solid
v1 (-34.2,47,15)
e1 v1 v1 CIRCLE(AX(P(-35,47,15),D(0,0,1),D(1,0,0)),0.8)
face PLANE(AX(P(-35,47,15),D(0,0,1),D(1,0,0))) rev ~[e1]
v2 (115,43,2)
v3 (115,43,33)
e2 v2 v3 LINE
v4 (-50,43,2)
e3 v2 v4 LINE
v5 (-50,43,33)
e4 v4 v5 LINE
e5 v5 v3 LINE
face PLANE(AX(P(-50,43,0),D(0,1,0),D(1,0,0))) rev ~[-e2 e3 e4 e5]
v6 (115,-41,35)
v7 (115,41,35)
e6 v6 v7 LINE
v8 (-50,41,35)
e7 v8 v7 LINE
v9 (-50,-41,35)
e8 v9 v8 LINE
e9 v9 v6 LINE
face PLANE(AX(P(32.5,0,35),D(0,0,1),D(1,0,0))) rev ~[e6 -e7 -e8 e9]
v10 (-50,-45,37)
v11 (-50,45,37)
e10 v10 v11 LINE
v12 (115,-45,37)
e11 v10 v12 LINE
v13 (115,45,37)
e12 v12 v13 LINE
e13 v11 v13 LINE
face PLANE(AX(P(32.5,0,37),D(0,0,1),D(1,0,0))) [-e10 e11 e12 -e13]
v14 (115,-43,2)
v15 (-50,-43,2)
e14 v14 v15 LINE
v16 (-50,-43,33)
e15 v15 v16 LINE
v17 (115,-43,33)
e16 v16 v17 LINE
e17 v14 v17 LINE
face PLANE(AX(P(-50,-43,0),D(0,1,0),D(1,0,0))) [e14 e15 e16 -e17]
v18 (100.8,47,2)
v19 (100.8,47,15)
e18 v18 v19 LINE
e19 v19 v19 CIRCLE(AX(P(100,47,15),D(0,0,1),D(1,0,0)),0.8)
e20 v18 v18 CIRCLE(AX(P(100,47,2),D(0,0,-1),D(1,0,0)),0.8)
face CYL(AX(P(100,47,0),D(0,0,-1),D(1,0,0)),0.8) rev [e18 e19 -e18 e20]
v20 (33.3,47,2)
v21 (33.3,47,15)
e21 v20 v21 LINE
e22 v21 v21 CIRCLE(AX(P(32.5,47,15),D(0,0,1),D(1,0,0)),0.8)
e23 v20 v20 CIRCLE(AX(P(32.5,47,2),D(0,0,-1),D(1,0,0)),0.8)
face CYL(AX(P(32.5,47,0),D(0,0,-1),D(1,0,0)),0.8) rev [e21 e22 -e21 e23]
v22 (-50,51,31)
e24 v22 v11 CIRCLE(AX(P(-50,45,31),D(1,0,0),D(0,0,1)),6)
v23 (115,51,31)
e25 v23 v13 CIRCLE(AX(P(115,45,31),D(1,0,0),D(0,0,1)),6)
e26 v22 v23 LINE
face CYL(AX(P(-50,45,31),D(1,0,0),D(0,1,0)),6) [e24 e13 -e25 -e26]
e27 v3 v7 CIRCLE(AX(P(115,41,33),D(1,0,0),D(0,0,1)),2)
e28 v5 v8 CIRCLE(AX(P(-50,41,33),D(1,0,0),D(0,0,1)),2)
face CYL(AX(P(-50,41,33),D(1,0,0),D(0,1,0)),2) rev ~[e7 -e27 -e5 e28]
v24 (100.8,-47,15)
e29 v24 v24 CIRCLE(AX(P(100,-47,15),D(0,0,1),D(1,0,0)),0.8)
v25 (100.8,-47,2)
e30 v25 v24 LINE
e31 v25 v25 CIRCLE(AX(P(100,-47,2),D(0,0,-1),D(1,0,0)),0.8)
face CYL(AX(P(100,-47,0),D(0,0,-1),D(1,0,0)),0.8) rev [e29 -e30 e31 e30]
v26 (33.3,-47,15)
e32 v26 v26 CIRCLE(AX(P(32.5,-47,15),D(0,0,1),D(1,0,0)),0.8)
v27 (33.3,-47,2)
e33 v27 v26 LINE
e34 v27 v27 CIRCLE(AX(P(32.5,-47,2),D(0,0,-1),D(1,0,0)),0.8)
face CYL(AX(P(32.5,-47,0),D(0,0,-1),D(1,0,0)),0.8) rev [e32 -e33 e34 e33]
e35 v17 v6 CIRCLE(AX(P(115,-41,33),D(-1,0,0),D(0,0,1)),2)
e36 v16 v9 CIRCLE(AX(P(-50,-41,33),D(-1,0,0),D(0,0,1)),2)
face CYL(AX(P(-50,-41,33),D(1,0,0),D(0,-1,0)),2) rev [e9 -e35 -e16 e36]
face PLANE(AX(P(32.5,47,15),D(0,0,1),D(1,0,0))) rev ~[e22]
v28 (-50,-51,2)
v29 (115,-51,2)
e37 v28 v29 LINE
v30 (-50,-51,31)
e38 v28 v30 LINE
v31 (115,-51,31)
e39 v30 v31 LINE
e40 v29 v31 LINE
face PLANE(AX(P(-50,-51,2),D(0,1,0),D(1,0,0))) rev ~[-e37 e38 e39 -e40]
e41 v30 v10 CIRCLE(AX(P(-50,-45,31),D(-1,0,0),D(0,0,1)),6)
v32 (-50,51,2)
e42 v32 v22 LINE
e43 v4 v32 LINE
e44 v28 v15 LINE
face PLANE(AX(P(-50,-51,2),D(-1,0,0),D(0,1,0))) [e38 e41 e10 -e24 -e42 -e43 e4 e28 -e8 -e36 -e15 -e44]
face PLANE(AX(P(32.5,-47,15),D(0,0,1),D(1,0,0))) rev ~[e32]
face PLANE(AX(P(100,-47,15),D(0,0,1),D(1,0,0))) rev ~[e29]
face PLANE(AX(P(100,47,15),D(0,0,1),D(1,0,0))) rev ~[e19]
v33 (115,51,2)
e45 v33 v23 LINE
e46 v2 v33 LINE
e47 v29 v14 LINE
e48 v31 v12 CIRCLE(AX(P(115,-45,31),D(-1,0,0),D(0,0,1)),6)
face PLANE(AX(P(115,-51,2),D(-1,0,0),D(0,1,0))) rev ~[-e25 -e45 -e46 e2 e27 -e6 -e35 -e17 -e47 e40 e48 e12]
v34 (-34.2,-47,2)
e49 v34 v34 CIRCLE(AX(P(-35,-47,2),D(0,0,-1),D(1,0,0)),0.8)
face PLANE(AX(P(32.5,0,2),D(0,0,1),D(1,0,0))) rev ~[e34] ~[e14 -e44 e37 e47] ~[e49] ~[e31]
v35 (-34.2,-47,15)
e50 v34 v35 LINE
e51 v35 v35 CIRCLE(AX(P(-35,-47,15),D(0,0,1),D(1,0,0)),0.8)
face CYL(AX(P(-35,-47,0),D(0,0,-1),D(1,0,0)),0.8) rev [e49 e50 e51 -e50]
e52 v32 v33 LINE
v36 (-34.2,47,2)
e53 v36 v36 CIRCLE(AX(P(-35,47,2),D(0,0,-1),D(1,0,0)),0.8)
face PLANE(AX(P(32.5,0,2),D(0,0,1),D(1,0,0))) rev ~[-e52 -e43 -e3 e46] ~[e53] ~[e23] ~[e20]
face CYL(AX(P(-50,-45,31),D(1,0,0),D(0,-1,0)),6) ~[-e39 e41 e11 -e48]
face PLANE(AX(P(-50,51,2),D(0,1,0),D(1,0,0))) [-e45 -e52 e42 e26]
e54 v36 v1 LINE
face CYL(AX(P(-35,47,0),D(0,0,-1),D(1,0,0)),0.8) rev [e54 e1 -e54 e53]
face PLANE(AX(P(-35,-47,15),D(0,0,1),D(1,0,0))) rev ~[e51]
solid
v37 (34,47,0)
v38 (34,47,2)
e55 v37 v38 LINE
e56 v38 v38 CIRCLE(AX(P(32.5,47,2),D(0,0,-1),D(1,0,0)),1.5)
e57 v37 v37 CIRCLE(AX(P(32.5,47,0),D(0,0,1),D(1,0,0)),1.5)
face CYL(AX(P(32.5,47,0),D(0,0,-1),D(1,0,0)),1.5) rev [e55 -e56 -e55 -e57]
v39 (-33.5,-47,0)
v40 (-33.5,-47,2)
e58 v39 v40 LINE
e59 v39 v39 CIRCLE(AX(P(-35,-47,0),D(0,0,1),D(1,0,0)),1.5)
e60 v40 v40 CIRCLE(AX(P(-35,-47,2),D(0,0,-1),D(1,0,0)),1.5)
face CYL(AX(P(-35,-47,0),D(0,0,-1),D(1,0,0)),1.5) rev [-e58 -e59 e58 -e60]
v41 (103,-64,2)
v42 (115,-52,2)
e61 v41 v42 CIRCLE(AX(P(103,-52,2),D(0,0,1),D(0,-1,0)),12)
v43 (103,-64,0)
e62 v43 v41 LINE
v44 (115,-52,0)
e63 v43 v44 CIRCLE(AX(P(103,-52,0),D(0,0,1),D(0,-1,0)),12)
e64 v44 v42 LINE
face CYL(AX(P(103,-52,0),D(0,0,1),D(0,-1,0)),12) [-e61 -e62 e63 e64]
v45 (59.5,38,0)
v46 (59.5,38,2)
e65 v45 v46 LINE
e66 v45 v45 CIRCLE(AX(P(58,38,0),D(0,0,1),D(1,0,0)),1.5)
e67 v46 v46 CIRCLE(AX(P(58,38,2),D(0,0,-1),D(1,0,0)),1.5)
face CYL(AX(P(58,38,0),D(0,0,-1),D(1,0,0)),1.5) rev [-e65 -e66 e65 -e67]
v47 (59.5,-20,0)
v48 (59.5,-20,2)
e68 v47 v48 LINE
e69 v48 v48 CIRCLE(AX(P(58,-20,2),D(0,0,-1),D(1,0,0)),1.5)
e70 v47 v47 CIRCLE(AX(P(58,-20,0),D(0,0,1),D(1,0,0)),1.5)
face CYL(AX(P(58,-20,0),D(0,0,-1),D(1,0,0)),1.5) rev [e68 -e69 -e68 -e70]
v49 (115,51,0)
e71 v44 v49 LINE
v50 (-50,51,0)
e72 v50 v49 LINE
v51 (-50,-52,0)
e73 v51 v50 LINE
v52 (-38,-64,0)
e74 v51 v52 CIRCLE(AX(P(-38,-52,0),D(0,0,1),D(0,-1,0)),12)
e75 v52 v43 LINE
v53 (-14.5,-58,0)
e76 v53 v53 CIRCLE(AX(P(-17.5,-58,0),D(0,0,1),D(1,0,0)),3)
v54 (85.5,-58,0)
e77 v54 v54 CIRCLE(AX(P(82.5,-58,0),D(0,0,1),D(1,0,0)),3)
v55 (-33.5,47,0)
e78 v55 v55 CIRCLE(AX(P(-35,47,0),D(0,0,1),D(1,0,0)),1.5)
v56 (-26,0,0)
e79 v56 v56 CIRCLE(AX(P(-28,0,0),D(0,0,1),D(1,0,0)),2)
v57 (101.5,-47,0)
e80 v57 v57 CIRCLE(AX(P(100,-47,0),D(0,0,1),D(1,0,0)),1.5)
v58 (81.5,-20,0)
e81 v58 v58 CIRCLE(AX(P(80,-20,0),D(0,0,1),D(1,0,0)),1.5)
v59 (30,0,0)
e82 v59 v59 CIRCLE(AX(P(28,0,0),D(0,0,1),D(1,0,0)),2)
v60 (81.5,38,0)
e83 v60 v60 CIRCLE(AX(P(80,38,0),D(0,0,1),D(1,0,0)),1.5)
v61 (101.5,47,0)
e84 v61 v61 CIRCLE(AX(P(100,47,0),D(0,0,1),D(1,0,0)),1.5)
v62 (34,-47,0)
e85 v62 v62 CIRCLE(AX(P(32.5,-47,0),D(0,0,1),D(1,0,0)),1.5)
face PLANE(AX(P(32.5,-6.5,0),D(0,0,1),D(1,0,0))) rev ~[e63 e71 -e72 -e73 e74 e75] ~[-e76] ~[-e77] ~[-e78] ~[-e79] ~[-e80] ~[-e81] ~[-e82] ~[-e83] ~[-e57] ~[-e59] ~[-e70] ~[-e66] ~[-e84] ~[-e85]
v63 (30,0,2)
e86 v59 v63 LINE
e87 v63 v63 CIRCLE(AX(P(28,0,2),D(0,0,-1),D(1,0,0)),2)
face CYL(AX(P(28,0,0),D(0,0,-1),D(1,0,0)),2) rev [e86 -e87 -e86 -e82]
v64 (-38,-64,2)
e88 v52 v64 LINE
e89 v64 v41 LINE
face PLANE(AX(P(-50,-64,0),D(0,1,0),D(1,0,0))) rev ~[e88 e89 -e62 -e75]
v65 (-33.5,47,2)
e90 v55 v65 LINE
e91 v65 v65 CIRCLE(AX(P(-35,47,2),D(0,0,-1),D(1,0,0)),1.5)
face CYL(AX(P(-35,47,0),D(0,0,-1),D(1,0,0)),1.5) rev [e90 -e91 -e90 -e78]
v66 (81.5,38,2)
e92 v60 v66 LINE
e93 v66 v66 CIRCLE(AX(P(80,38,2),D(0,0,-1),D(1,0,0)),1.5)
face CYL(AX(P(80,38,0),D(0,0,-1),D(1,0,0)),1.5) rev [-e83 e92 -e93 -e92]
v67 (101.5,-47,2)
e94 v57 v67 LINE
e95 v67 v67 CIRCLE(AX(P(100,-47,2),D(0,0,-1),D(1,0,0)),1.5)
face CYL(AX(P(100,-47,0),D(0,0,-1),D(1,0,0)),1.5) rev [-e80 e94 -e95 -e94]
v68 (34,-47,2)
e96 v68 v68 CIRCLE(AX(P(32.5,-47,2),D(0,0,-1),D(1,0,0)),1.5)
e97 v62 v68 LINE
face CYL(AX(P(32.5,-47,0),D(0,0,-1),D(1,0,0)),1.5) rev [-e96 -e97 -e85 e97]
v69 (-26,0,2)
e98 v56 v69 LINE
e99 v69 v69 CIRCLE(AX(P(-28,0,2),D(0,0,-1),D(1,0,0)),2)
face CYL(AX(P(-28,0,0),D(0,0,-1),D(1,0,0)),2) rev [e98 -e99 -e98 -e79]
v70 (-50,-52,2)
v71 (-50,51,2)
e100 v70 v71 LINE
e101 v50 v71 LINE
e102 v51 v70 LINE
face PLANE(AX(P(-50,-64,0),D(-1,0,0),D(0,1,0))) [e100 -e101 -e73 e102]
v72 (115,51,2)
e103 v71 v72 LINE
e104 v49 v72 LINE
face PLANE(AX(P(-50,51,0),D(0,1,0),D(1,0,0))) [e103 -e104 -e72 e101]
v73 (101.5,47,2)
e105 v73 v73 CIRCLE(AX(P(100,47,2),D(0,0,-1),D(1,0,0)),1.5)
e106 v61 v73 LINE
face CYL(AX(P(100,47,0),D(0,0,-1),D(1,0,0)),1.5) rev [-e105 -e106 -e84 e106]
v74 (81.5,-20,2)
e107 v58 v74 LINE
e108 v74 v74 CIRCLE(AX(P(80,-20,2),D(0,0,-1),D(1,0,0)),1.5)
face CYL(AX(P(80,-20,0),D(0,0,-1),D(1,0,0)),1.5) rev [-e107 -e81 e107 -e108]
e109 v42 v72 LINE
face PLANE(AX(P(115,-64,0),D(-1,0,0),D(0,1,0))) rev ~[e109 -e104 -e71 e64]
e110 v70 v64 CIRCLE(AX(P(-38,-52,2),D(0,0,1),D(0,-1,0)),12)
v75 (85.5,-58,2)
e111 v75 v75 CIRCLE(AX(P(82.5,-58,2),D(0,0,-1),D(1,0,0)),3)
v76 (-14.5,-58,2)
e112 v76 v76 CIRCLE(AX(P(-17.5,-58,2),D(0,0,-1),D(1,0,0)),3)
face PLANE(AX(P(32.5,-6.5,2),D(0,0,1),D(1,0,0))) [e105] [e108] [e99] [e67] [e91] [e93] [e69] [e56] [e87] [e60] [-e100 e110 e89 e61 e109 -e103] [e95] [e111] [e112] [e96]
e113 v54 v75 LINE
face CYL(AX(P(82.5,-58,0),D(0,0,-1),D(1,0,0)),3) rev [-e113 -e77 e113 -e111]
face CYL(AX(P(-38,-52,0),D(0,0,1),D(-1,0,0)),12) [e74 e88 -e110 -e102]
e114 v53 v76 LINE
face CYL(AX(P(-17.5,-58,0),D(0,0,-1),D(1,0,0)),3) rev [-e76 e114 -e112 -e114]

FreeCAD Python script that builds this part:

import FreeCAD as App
import Part
import Sketcher

V = App.Vector
Q = App.Units.Quantity


def edges_at(feature, points):
    """Names of the edges that pass closest to the given points."""
    edges = feature.Shape.Edges
    near = lambda p: min(range(len(edges)), key=lambda i: edges[i].distToShape(Part.Vertex(*p))[0])
    return sorted({f"Edge{near(p) + 1}" for p in points})


def add_polygon(sketch, points):
    """Adds a closed chain of lines whose ends are joined by coincident constraints."""
    first, n = sketch.GeometryCount, len(points)
    for a, b in zip(points, points[1:] + points[:1]):
        sketch.addGeometry(Part.LineSegment(App.Vector(*a, 0), App.Vector(*b, 0)), False)
    for i in range(n):
        sketch.addConstraint(Sketcher.Constraint("Coincident", first + i, 2, first + (i + 1) % n, 1))

doc = App.newDocument("Part")
body = doc.addObject("PartDesign::Body", "Body")

# Sketch on XY plane
sketch1 = body.newObject("Sketcher::SketchObject", "Sketch")
sketch1.AttachmentSupport = (doc.getObject("XY_Plane"), [""])
sketch1.MapMode = "FlatFace"
sketch1.addGeometry(Part.Circle(V(100, 47, 0), V(0, 0, 1), 0.8), False)
sketch1.addConstraint([
    Sketcher.Constraint("Diameter", 0, Q("1.6 mm")),
    Sketcher.Constraint("DistanceX", -1, 1, 0, 3, Q("100 mm")),
    Sketcher.Constraint("DistanceY", -1, 1, 0, 3, Q("47 mm")),
])
pad1 = body.newObject("PartDesign::Pad", "Pad")
pad1.Profile = sketch1
pad1.Length = 15
body2 = doc.addObject("PartDesign::Body", "Body001")

# Sketch on XY plane
sketch2 = body2.newObject("Sketcher::SketchObject", "Sketch001")
sketch2.AttachmentSupport = (doc.getObject("XY_Plane001"), [""])
sketch2.MapMode = "FlatFace"
sketch2.addGeometry(Part.Circle(V(-35, 47, 0), V(0, 0, 1), 0.8), False)
sketch2.addConstraint([
    Sketcher.Constraint("Diameter", 0, Q("1.6 mm")),
    Sketcher.Constraint("DistanceX", 0, 3, -1, 1, Q("35 mm")),
    Sketcher.Constraint("DistanceY", -1, 1, 0, 3, Q("47 mm")),
])
pad2 = body2.newObject("PartDesign::Pad", "Pad001")
pad2.Profile = sketch2
pad2.Length = 15
body3 = doc.addObject("PartDesign::Body", "Body002")

# Sketch on XY plane
sketch3 = body3.newObject("Sketcher::SketchObject", "Sketch002")
sketch3.AttachmentSupport = (doc.getObject("XY_Plane002"), [""])
sketch3.MapMode = "FlatFace"
sketch3.addGeometry(Part.Circle(V(32.5, 47, 0), V(0, 0, 1), 0.8), False)
sketch3.addConstraint([
    Sketcher.Constraint("Diameter", 0, Q("1.6 mm")),
    Sketcher.Constraint("DistanceY", -1, 1, 0, 3, Q("47 mm")),
    Sketcher.Constraint("DistanceX", -1, 1, 0, 3, Q("32.5 mm")),
])
pad3 = body3.newObject("PartDesign::Pad", "Pad002")
pad3.Profile = sketch3
pad3.Length = 15
body4 = doc.addObject("PartDesign::Body", "Body003")

# Sketch on XY plane
sketch4 = body4.newObject("Sketcher::SketchObject", "Sketch003")
sketch4.AttachmentSupport = (doc.getObject("XY_Plane003"), [""])
sketch4.MapMode = "FlatFace"
sketch4.addGeometry(Part.Circle(V(100, -47, 0), V(0, 0, 1), 0.8), False)
sketch4.addConstraint([
    Sketcher.Constraint("Diameter", 0, Q("1.6 mm")),
    Sketcher.Constraint("DistanceX", -1, 1, 0, 3, Q("100 mm")),
    Sketcher.Constraint("DistanceY", 0, 3, -1, 1, Q("47 mm")),
])
pad4 = body4.newObject("PartDesign::Pad", "Pad003")
pad4.Profile = sketch4
pad4.Length = 15
body5 = doc.addObject("PartDesign::Body", "Body004")

# Sketch on XY plane
sketch5 = body5.newObject("Sketcher::SketchObject", "Sketch004")
sketch5.AttachmentSupport = (doc.getObject("XY_Plane004"), [""])
sketch5.MapMode = "FlatFace"
sketch5.addGeometry(Part.Circle(V(-35, -47, 0), V(0, 0, 1), 0.8), False)
sketch5.addConstraint([
    Sketcher.Constraint("Diameter", 0, Q("1.6 mm")),
    Sketcher.Constraint("DistanceX", 0, 3, -1, 1, Q("35 mm")),
    Sketcher.Constraint("DistanceY", 0, 3, -1, 1, Q("47 mm")),
])
pad5 = body5.newObject("PartDesign::Pad", "Pad004")
pad5.Profile = sketch5
pad5.Length = 15
body6 = doc.addObject("PartDesign::Body", "Body005")
body6.AllowCompound = True

# Sketch on XY plane
sketch6 = body6.newObject("Sketcher::SketchObject", "Sketch005")
sketch6.AttachmentSupport = (doc.getObject("XY_Plane005"), [""])
sketch6.MapMode = "FlatFace"
sketch6.addGeometry(Part.Circle(V(32.5, -47, 0), V(0, 0, 1), 0.8), False)
sketch6.addConstraint([
    Sketcher.Constraint("Diameter", 0, Q("1.6 mm")),
    Sketcher.Constraint("DistanceY", 0, 3, -1, 1, Q("47 mm")),
    Sketcher.Constraint("DistanceX", -1, 1, 0, 3, Q("32.5 mm")),
])
pad6 = body6.newObject("PartDesign::Pad", "Pad005")
pad6.Profile = sketch6
pad6.Length = 15
doc.recompute()

boolean = body6.newObject("PartDesign::Boolean", "Boolean")
boolean.Type = "Fuse"
boolean.addObjects([body])
doc.recompute()

boolean2 = body6.newObject("PartDesign::Boolean", "Boolean001")
boolean2.Type = "Fuse"
boolean2.addObjects([body2])
doc.recompute()

boolean3 = body6.newObject("PartDesign::Boolean", "Boolean002")
boolean3.Type = "Fuse"
boolean3.addObjects([body3])
doc.recompute()

boolean4 = body6.newObject("PartDesign::Boolean", "Boolean003")
boolean4.Type = "Fuse"
boolean4.addObjects([body4])
doc.recompute()

boolean5 = body6.newObject("PartDesign::Boolean", "Boolean004")
boolean5.Type = "Fuse"
boolean5.addObjects([body5])
body7 = doc.addObject("PartDesign::Body", "Body006")

# Sketch on XY plane
sketch7 = body7.newObject("Sketcher::SketchObject", "Sketch006")
sketch7.AttachmentSupport = (doc.getObject("XY_Plane006"), [""])
sketch7.MapMode = "FlatFace"
add_polygon(sketch7, [(-50, 43), (-50, -43), (115, -43), (115, 43)])  # lines 0-3
sketch7.addConstraint([
    Sketcher.Constraint("Vertical", 0),
    Sketcher.Constraint("Horizontal", 1),
    Sketcher.Constraint("Vertical", 2),
    Sketcher.Constraint("Horizontal", 3),
    Sketcher.Constraint("DistanceX", 1, 1, 1, 2, Q("165 mm")),
    Sketcher.Constraint("DistanceY", 0, 2, 0, 1, Q("86 mm")),
    Sketcher.Constraint("DistanceX", 0, 2, -1, 1, Q("50 mm")),
    Sketcher.Constraint("DistanceY", 0, 2, -1, 1, Q("43 mm")),
])
pad7 = body7.newObject("PartDesign::Pad", "Pad006")
pad7.Profile = sketch7
pad7.Length = 35
doc.recompute()

fillet = body7.newObject("PartDesign::Fillet", "Fillet")
fillet.Base = (pad7, edges_at(pad7, [(32.5, -43, 35), (32.5, 43, 35)]))
fillet.Radius = 2
body8 = doc.addObject("PartDesign::Body", "Body007")

# Sketch on XY plane
sketch8 = body8.newObject("Sketcher::SketchObject", "Sketch007")
sketch8.AttachmentSupport = (doc.getObject("XY_Plane007"), [""])
sketch8.MapMode = "FlatFace"
sketch8.AttachmentOffset = App.Placement(V(0, 0, 2), App.Rotation())
add_polygon(sketch8, [(-50, 51), (-50, -51), (115, -51), (115, 51)])  # lines 0-3
sketch8.addConstraint([
    Sketcher.Constraint("Vertical", 0),
    Sketcher.Constraint("Horizontal", 1),
    Sketcher.Constraint("Vertical", 2),
    Sketcher.Constraint("Horizontal", 3),
    Sketcher.Constraint("DistanceX", 1, 1, 1, 2, Q("165 mm")),
    Sketcher.Constraint("DistanceY", 0, 2, 0, 1, Q("102 mm")),
    Sketcher.Constraint("DistanceX", 0, 2, -1, 1, Q("50 mm")),
    Sketcher.Constraint("DistanceY", 0, 2, -1, 1, Q("51 mm")),
])
pad8 = body8.newObject("PartDesign::Pad", "Pad007")
pad8.Profile = sketch8
pad8.Length = 35
doc.recompute()

fillet2 = body8.newObject("PartDesign::Fillet", "Fillet001")
fillet2.Base = (pad8, edges_at(pad8, [(32.5, -51, 37), (32.5, 51, 37)]))
fillet2.Radius = 6
doc.recompute()

boolean6 = body8.newObject("PartDesign::Boolean", "Boolean005")
boolean6.Type = "Cut"
boolean6.addObjects([body7])
doc.recompute()

boolean7 = body8.newObject("PartDesign::Boolean", "Boolean006")
boolean7.Type = "Cut"
boolean7.addObjects([body6])
body9 = doc.addObject("PartDesign::Body", "Body008")

# Sketch on XY plane
sketch9 = body9.newObject("Sketcher::SketchObject", "Sketch008")
sketch9.AttachmentSupport = (doc.getObject("XY_Plane008"), [""])
sketch9.MapMode = "FlatFace"
sketch9.addGeometry(Part.Circle(V(-28, 0, 0), V(0, 0, 1), 2), False)
sketch9.addConstraint([
    Sketcher.Constraint("PointOnObject", 0, 3, -1),
    Sketcher.Constraint("Diameter", 0, Q("4 mm")),
    Sketcher.Constraint("DistanceX", 0, 3, -1, 1, Q("28 mm")),
])
pad9 = body9.newObject("PartDesign::Pad", "Pad008")
pad9.Profile = sketch9
pad9.Length = 10
body10 = doc.addObject("PartDesign::Body", "Body009")

# Sketch on XY plane
sketch10 = body10.newObject("Sketcher::SketchObject", "Sketch009")
sketch10.AttachmentSupport = (doc.getObject("XY_Plane009"), [""])
sketch10.MapMode = "FlatFace"
sketch10.addGeometry(Part.Circle(V(58, 38, 0), V(0, 0, 1), 1.5), False)
sketch10.addConstraint([
    Sketcher.Constraint("Diameter", 0, Q("3 mm")),
    Sketcher.Constraint("DistanceX", -1, 1, 0, 3, Q("58 mm")),
    Sketcher.Constraint("DistanceY", -1, 1, 0, 3, Q("38 mm")),
])
pad10 = body10.newObject("PartDesign::Pad", "Pad009")
pad10.Profile = sketch10
pad10.Length = 10
body11 = doc.addObject("PartDesign::Body", "Body010")

# Sketch on XY plane
sketch11 = body11.newObject("Sketcher::SketchObject", "Sketch010")
sketch11.AttachmentSupport = (doc.getObject("XY_Plane010"), [""])
sketch11.MapMode = "FlatFace"
sketch11.addGeometry(Part.Circle(V(58, -20, 0), V(0, 0, 1), 1.5), False)
sketch11.addConstraint([
    Sketcher.Constraint("Diameter", 0, Q("3 mm")),
    Sketcher.Constraint("DistanceX", -1, 1, 0, 3, Q("58 mm")),
    Sketcher.Constraint("DistanceY", 0, 3, -1, 1, Q("20 mm")),
])
pad11 = body11.newObject("PartDesign::Pad", "Pad010")
pad11.Profile = sketch11
pad11.Length = 10
body12 = doc.addObject("PartDesign::Body", "Body011")

# Sketch on XY plane
sketch12 = body12.newObject("Sketcher::SketchObject", "Sketch011")
sketch12.AttachmentSupport = (doc.getObject("XY_Plane011"), [""])
sketch12.MapMode = "FlatFace"
sketch12.addGeometry(Part.Circle(V(80, 38, 0), V(0, 0, 1), 1.5), False)
sketch12.addConstraint([
    Sketcher.Constraint("Diameter", 0, Q("3 mm")),
    Sketcher.Constraint("DistanceX", -1, 1, 0, 3, Q("80 mm")),
    Sketcher.Constraint("DistanceY", -1, 1, 0, 3, Q("38 mm")),
])
pad12 = body12.newObject("PartDesign::Pad", "Pad011")
pad12.Profile = sketch12
pad12.Length = 10
body13 = doc.addObject("PartDesign::Body", "Body012")

# Sketch on XY plane
sketch13 = body13.newObject("Sketcher::SketchObject", "Sketch012")
sketch13.AttachmentSupport = (doc.getObject("XY_Plane012"), [""])
sketch13.MapMode = "FlatFace"
sketch13.addGeometry(Part.Circle(V(80, -20, 0), V(0, 0, 1), 1.5), False)
sketch13.addConstraint([
    Sketcher.Constraint("Diameter", 0, Q("3 mm")),
    Sketcher.Constraint("DistanceX", -1, 1, 0, 3, Q("80 mm")),
    Sketcher.Constraint("DistanceY", 0, 3, -1, 1, Q("20 mm")),
])
pad13 = body13.newObject("PartDesign::Pad", "Pad012")
pad13.Profile = sketch13
pad13.Length = 10
body14 = doc.addObject("PartDesign::Body", "Body013")

# Sketch on XY plane
sketch14 = body14.newObject("Sketcher::SketchObject", "Sketch013")
sketch14.AttachmentSupport = (doc.getObject("XY_Plane013"), [""])
sketch14.MapMode = "FlatFace"
sketch14.addGeometry(Part.Circle(V(-17.5, -58, 0), V(0, 0, 1), 3), False)
sketch14.addConstraint([
    Sketcher.Constraint("Diameter", 0, Q("6 mm")),
    Sketcher.Constraint("DistanceY", 0, 3, -1, 1, Q("58 mm")),
    Sketcher.Constraint("DistanceX", 0, 3, -1, 1, Q("17.5 mm")),
])
pad14 = body14.newObject("PartDesign::Pad", "Pad013")
pad14.Profile = sketch14
pad14.Length = 10
body15 = doc.addObject("PartDesign::Body", "Body014")

# Sketch on XY plane
sketch15 = body15.newObject("Sketcher::SketchObject", "Sketch014")
sketch15.AttachmentSupport = (doc.getObject("XY_Plane014"), [""])
sketch15.MapMode = "FlatFace"
sketch15.addGeometry(Part.Circle(V(82.5, -58, 0), V(0, 0, 1), 3), False)
sketch15.addConstraint([
    Sketcher.Constraint("Diameter", 0, Q("6 mm")),
    Sketcher.Constraint("DistanceY", 0, 3, -1, 1, Q("58 mm")),
    Sketcher.Constraint("DistanceX", -1, 1, 0, 3, Q("82.5 mm")),
])
pad15 = body15.newObject("PartDesign::Pad", "Pad014")
pad15.Profile = sketch15
pad15.Length = 10
body16 = doc.addObject("PartDesign::Body", "Body015")

# Sketch on XY plane
sketch16 = body16.newObject("Sketcher::SketchObject", "Sketch015")
sketch16.AttachmentSupport = (doc.getObject("XY_Plane015"), [""])
sketch16.MapMode = "FlatFace"
sketch16.addGeometry(Part.Circle(V(100, 47, 0), V(0, 0, 1), 1.5), False)
sketch16.addConstraint([
    Sketcher.Constraint("Diameter", 0, Q("3 mm")),
    Sketcher.Constraint("DistanceX", -1, 1, 0, 3, Q("100 mm")),
    Sketcher.Constraint("DistanceY", -1, 1, 0, 3, Q("47 mm")),
])
pad16 = body16.newObject("PartDesign::Pad", "Pad015")
pad16.Profile = sketch16
pad16.Length = 10
body17 = doc.addObject("PartDesign::Body", "Body016")

# Sketch on XY plane
sketch17 = body17.newObject("Sketcher::SketchObject", "Sketch016")
sketch17.AttachmentSupport = (doc.getObject("XY_Plane016"), [""])
sketch17.MapMode = "FlatFace"
sketch17.addGeometry(Part.Circle(V(-35, 47, 0), V(0, 0, 1), 1.5), False)
sketch17.addConstraint([
    Sketcher.Constraint("Diameter", 0, Q("3 mm")),
    Sketcher.Constraint("DistanceX", 0, 3, -1, 1, Q("35 mm")),
    Sketcher.Constraint("DistanceY", -1, 1, 0, 3, Q("47 mm")),
])
pad17 = body17.newObject("PartDesign::Pad", "Pad016")
pad17.Profile = sketch17
pad17.Length = 10
body18 = doc.addObject("PartDesign::Body", "Body017")

# Sketch on XY plane
sketch18 = body18.newObject("Sketcher::SketchObject", "Sketch017")
sketch18.AttachmentSupport = (doc.getObject("XY_Plane017"), [""])
sketch18.MapMode = "FlatFace"
sketch18.addGeometry(Part.Circle(V(32.5, 47, 0), V(0, 0, 1), 1.5), False)
sketch18.addConstraint([
    Sketcher.Constraint("Diameter", 0, Q("3 mm")),
    Sketcher.Constraint("DistanceY", -1, 1, 0, 3, Q("47 mm")),
    Sketcher.Constraint("DistanceX", -1, 1, 0, 3, Q("32.5 mm")),
])
pad18 = body18.newObject("PartDesign::Pad", "Pad017")
pad18.Profile = sketch18
pad18.Length = 10
body19 = doc.addObject("PartDesign::Body", "Body018")

# Sketch on XY plane
sketch19 = body19.newObject("Sketcher::SketchObject", "Sketch018")
sketch19.AttachmentSupport = (doc.getObject("XY_Plane018"), [""])
sketch19.MapMode = "FlatFace"
sketch19.addGeometry(Part.Circle(V(100, -47, 0), V(0, 0, 1), 1.5), False)
sketch19.addConstraint([
    Sketcher.Constraint("Diameter", 0, Q("3 mm")),
    Sketcher.Constraint("DistanceX", -1, 1, 0, 3, Q("100 mm")),
    Sketcher.Constraint("DistanceY", 0, 3, -1, 1, Q("47 mm")),
])
pad19 = body19.newObject("PartDesign::Pad", "Pad018")
pad19.Profile = sketch19
pad19.Length = 10
body20 = doc.addObject("PartDesign::Body", "Body019")

# Sketch on XY plane
sketch20 = body20.newObject("Sketcher::SketchObject", "Sketch019")
sketch20.AttachmentSupport = (doc.getObject("XY_Plane019"), [""])
sketch20.MapMode = "FlatFace"
sketch20.addGeometry(Part.Circle(V(-35, -47, 0), V(0, 0, 1), 1.5), False)
sketch20.addConstraint([
    Sketcher.Constraint("Diameter", 0, Q("3 mm")),
    Sketcher.Constraint("DistanceX", 0, 3, -1, 1, Q("35 mm")),
    Sketcher.Constraint("DistanceY", 0, 3, -1, 1, Q("47 mm")),
])
pad20 = body20.newObject("PartDesign::Pad", "Pad019")
pad20.Profile = sketch20
pad20.Length = 10
body21 = doc.addObject("PartDesign::Body", "Body020")

# Sketch on XY plane
sketch21 = body21.newObject("Sketcher::SketchObject", "Sketch020")
sketch21.AttachmentSupport = (doc.getObject("XY_Plane020"), [""])
sketch21.MapMode = "FlatFace"
sketch21.addGeometry(Part.Circle(V(32.5, -47, 0), V(0, 0, 1), 1.5), False)
sketch21.addConstraint([
    Sketcher.Constraint("Diameter", 0, Q("3 mm")),
    Sketcher.Constraint("DistanceY", 0, 3, -1, 1, Q("47 mm")),
    Sketcher.Constraint("DistanceX", -1, 1, 0, 3, Q("32.5 mm")),
])
pad21 = body21.newObject("PartDesign::Pad", "Pad020")
pad21.Profile = sketch21
pad21.Length = 10
body22 = doc.addObject("PartDesign::Body", "Body021")
body22.AllowCompound = True

# Sketch on XY plane
sketch22 = body22.newObject("Sketcher::SketchObject", "Sketch021")
sketch22.AttachmentSupport = (doc.getObject("XY_Plane021"), [""])
sketch22.MapMode = "FlatFace"
sketch22.addGeometry(Part.Circle(V(28, 0, 0), V(0, 0, 1), 2), False)
sketch22.addConstraint([
    Sketcher.Constraint("PointOnObject", 0, 3, -1),
    Sketcher.Constraint("Diameter", 0, Q("4 mm")),
    Sketcher.Constraint("DistanceX", -1, 1, 0, 3, Q("28 mm")),
])
pad22 = body22.newObject("PartDesign::Pad", "Pad021")
pad22.Profile = sketch22
pad22.Length = 10
doc.recompute()

boolean8 = body22.newObject("PartDesign::Boolean", "Boolean007")
boolean8.Type = "Fuse"
boolean8.addObjects([body9])
doc.recompute()

boolean9 = body22.newObject("PartDesign::Boolean", "Boolean008")
boolean9.Type = "Fuse"
boolean9.addObjects([body10])
doc.recompute()

boolean10 = body22.newObject("PartDesign::Boolean", "Boolean009")
boolean10.Type = "Fuse"
boolean10.addObjects([body11])
doc.recompute()

boolean11 = body22.newObject("PartDesign::Boolean", "Boolean010")
boolean11.Type = "Fuse"
boolean11.addObjects([body12])
doc.recompute()

boolean12 = body22.newObject("PartDesign::Boolean", "Boolean011")
boolean12.Type = "Fuse"
boolean12.addObjects([body13])
doc.recompute()

boolean13 = body22.newObject("PartDesign::Boolean", "Boolean012")
boolean13.Type = "Fuse"
boolean13.addObjects([body14])
doc.recompute()

boolean14 = body22.newObject("PartDesign::Boolean", "Boolean013")
boolean14.Type = "Fuse"
boolean14.addObjects([body15])
doc.recompute()

boolean15 = body22.newObject("PartDesign::Boolean", "Boolean014")
boolean15.Type = "Fuse"
boolean15.addObjects([body16])
doc.recompute()

boolean16 = body22.newObject("PartDesign::Boolean", "Boolean015")
boolean16.Type = "Fuse"
boolean16.addObjects([body17])
doc.recompute()

boolean17 = body22.newObject("PartDesign::Boolean", "Boolean016")
boolean17.Type = "Fuse"
boolean17.addObjects([body18])
doc.recompute()

boolean18 = body22.newObject("PartDesign::Boolean", "Boolean017")
boolean18.Type = "Fuse"
boolean18.addObjects([body19])
doc.recompute()

boolean19 = body22.newObject("PartDesign::Boolean", "Boolean018")
boolean19.Type = "Fuse"
boolean19.addObjects([body20])
doc.recompute()

boolean20 = body22.newObject("PartDesign::Boolean", "Boolean019")
boolean20.Type = "Fuse"
boolean20.addObjects([body21])
body23 = doc.addObject("PartDesign::Body", "Body022")

# Sketch on XY plane
sketch23 = body23.newObject("Sketcher::SketchObject", "Sketch022")
sketch23.AttachmentSupport = (doc.getObject("XY_Plane022"), [""])
sketch23.MapMode = "FlatFace"
add_polygon(sketch23, [(-50, 51), (-50, -64), (115, -64), (115, 51)])  # lines 0-3
sketch23.addConstraint([
    Sketcher.Constraint("Vertical", 0),
    Sketcher.Constraint("Horizontal", 1),
    Sketcher.Constraint("Vertical", 2),
    Sketcher.Constraint("Horizontal", 3),
    Sketcher.Constraint("DistanceX", 1, 1, 1, 2, Q("165 mm")),
    Sketcher.Constraint("DistanceY", 0, 2, 0, 1, Q("115 mm")),
    Sketcher.Constraint("DistanceX", 0, 2, -1, 1, Q("50 mm")),
    Sketcher.Constraint("DistanceY", 0, 2, -1, 1, Q("64 mm")),
])
pad23 = body23.newObject("PartDesign::Pad", "Pad022")
pad23.Profile = sketch23
pad23.Length = 2
doc.recompute()

boolean21 = body23.newObject("PartDesign::Boolean", "Boolean020")
boolean21.Type = "Cut"
boolean21.addObjects([body22])
doc.recompute()

fillet3 = body23.newObject("PartDesign::Fillet", "Fillet002")
fillet3.Base = (boolean21, edges_at(boolean21, [(-50, -64, 1), (115, -64, 1)]))
fillet3.Radius = 12

doc.recompute()
